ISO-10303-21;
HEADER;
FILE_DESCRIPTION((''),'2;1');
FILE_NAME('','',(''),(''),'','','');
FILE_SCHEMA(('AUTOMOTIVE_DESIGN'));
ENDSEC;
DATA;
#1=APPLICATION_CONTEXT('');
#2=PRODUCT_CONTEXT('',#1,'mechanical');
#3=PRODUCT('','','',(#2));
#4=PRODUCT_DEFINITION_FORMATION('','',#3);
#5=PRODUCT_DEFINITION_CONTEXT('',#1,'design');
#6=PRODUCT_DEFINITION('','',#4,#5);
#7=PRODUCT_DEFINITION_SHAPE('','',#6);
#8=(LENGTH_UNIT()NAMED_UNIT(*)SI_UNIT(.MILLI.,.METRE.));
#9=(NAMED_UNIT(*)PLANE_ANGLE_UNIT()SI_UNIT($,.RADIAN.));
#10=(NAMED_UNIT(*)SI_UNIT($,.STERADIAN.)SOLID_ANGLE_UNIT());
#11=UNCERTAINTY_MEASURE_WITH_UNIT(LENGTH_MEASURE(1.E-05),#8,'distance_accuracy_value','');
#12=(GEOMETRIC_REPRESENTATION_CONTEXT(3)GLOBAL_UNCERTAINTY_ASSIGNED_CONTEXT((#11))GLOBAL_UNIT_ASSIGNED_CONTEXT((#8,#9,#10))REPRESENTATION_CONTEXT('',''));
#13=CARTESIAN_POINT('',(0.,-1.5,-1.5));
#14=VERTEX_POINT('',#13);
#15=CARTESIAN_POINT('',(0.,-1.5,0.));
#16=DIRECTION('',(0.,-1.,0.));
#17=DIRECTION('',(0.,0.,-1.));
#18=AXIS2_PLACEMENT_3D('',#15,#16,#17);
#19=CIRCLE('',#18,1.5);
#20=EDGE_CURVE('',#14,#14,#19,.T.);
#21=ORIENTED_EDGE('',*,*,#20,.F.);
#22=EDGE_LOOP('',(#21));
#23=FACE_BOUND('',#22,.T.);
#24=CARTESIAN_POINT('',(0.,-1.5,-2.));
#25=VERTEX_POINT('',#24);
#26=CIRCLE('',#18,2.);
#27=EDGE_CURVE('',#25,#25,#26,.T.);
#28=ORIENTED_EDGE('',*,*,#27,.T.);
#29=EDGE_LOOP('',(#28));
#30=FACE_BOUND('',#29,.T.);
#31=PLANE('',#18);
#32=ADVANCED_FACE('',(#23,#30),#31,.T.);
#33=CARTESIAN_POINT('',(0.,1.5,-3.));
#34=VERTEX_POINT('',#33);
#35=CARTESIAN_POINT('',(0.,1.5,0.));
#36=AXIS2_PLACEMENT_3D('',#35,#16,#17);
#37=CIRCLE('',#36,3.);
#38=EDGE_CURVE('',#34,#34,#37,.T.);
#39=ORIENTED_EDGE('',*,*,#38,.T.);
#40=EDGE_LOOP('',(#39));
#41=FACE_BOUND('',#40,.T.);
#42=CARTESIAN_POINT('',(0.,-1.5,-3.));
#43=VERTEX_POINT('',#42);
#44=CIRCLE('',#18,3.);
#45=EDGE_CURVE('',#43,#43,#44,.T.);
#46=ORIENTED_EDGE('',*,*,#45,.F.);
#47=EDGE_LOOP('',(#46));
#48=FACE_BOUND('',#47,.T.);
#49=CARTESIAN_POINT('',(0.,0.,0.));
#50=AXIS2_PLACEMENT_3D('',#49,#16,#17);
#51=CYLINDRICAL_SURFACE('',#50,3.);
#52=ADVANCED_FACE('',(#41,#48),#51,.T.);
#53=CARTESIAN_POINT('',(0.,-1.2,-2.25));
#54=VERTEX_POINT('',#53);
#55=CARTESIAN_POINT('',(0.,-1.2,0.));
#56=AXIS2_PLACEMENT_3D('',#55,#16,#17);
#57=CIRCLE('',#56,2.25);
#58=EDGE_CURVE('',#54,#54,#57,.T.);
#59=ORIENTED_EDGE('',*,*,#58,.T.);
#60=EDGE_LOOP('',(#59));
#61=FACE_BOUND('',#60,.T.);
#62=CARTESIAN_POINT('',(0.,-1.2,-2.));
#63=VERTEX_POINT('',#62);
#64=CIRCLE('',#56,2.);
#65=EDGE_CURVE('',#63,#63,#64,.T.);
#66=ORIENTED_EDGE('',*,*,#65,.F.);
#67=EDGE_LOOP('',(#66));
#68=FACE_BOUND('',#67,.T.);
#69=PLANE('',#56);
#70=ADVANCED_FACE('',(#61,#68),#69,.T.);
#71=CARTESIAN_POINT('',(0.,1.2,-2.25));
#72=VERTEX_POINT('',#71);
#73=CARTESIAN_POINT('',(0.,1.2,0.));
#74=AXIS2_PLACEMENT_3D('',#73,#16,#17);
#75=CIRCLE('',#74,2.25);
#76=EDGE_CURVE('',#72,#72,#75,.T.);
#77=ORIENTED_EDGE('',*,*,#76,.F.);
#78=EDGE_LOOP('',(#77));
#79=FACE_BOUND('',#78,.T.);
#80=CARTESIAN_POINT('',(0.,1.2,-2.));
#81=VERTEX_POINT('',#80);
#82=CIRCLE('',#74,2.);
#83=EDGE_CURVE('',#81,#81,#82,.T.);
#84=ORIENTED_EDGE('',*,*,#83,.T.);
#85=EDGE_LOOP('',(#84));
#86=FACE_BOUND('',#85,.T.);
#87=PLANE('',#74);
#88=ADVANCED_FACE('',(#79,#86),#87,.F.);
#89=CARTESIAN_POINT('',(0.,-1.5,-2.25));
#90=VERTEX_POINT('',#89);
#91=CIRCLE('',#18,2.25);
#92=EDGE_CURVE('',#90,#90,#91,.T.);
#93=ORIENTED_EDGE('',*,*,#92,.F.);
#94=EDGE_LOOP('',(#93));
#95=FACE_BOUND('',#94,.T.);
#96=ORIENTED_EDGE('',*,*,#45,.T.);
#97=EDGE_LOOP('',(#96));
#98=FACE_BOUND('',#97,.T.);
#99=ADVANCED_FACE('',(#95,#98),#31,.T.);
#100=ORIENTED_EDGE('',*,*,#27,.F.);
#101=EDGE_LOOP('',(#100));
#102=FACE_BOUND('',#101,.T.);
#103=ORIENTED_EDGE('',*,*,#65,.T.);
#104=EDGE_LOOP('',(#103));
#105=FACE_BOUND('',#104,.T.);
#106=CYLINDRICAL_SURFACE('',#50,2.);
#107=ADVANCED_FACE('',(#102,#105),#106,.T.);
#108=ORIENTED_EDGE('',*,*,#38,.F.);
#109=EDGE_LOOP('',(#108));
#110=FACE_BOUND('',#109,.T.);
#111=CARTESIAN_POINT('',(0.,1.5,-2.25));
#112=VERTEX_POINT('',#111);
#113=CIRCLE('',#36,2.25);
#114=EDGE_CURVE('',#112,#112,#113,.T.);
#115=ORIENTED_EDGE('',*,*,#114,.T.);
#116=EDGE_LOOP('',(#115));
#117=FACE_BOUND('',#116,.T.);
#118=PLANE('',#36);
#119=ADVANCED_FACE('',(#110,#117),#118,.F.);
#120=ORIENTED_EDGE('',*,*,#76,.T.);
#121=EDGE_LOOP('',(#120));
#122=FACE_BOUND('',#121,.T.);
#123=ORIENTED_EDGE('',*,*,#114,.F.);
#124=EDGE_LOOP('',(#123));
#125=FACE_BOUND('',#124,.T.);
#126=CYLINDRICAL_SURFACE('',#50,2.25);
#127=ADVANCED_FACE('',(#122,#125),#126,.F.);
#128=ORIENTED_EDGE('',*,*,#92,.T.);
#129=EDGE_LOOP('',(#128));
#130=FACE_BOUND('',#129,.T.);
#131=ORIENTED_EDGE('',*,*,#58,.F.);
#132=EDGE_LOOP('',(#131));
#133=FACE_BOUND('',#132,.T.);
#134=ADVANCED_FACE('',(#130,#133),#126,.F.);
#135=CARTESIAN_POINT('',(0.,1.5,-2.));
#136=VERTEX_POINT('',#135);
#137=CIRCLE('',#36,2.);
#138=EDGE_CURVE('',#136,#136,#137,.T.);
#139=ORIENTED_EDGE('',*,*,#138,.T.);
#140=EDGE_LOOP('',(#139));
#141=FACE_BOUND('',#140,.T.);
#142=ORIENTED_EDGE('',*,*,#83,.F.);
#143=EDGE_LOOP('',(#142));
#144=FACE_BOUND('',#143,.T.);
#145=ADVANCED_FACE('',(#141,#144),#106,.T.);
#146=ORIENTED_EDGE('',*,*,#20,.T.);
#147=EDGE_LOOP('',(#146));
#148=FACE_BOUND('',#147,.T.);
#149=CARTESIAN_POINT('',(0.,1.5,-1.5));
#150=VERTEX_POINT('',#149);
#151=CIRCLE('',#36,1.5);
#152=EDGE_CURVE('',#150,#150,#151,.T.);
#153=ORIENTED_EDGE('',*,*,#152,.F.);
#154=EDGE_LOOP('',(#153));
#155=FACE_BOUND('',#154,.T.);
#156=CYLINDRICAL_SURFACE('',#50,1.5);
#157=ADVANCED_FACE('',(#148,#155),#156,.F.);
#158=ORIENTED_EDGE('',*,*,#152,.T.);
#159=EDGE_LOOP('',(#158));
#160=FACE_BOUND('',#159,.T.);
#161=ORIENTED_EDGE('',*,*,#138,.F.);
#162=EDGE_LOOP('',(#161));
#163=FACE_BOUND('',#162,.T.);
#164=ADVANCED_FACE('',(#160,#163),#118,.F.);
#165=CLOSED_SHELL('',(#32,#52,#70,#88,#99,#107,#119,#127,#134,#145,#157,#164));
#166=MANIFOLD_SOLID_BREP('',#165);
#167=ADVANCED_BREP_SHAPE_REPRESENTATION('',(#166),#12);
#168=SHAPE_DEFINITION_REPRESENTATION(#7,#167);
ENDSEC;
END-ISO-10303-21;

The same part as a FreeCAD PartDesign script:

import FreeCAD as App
import Part
import Sketcher

doc = App.newDocument("Part")
body = doc.addObject("PartDesign::Body", "Body")

# Sketch on YZ plane
sketch1 = body.newObject("Sketcher::SketchObject", "Sketch")
sketch1.AttachmentSupport = (doc.getObject("YZ_Plane"), [""])
sketch1.MapMode = "FlatFace"
sketch1.addGeometry([
    Part.LineSegment(App.Vector(-1.5, 2, 0), App.Vector(-1.5, 1.5, 0)),  # 0
    Part.LineSegment(App.Vector(-1.5, 1.5, 0), App.Vector(1.5, 1.5, 0)),  # 1
    Part.LineSegment(App.Vector(1.5, 1.5, 0), App.Vector(1.5, 2, 0)),  # 2
    Part.LineSegment(App.Vector(1.5, 2, 0), App.Vector(1.2, 2, 0)),  # 3
    Part.LineSegment(App.Vector(1.2, 2, 0), App.Vector(1.2, 2.25, 0)),  # 4
    Part.LineSegment(App.Vector(1.2, 2.25, 0), App.Vector(1.5, 2.25, 0)),  # 5
    Part.LineSegment(App.Vector(1.5, 2.25, 0), App.Vector(1.5, 3, 0)),  # 6
    Part.LineSegment(App.Vector(1.5, 3, 0), App.Vector(-1.5, 3, 0)),  # 7
    Part.LineSegment(App.Vector(-1.5, 3, 0), App.Vector(-1.5, 2.25, 0)),  # 8
    Part.LineSegment(App.Vector(-1.5, 2.25, 0), App.Vector(-1.2, 2.25, 0)),  # 9
    Part.LineSegment(App.Vector(-1.2, 2.25, 0), App.Vector(-1.2, 2, 0)),  # 10
    Part.LineSegment(App.Vector(-1.2, 2, 0), App.Vector(-1.5, 2, 0)),  # 11
], False)
sketch1.addConstraint([
    Sketcher.Constraint("Coincident", 0, 2, 1, 1),
    Sketcher.Constraint("Coincident", 1, 2, 2, 1),
    Sketcher.Constraint("Coincident", 2, 2, 3, 1),
    Sketcher.Constraint("Coincident", 3, 2, 4, 1),
    Sketcher.Constraint("Coincident", 4, 2, 5, 1),
    Sketcher.Constraint("Coincident", 5, 2, 6, 1),
    Sketcher.Constraint("Coincident", 6, 2, 7, 1),
    Sketcher.Constraint("Coincident", 7, 2, 8, 1),
    Sketcher.Constraint("Coincident", 8, 2, 9, 1),
    Sketcher.Constraint("Coincident", 9, 2, 10, 1),
    Sketcher.Constraint("Coincident", 10, 2, 11, 1),
    Sketcher.Constraint("Coincident", 11, 2, 0, 1),
    Sketcher.Constraint("Vertical", 0),
    Sketcher.Constraint("Horizontal", 1),
    Sketcher.Constraint("Vertical", 2),
    Sketcher.Constraint("Horizontal", 3),
    Sketcher.Constraint("Vertical", 4),
    Sketcher.Constraint("Horizontal", 5),
    Sketcher.Constraint("Vertical", 6),
    Sketcher.Constraint("Horizontal", 7),
    Sketcher.Constraint("Vertical", 8),
    Sketcher.Constraint("Horizontal", 9),
    Sketcher.Constraint("Vertical", 10),
    Sketcher.Constraint("Horizontal", 11),
    Sketcher.Constraint("Symmetric", 5, 2, 8, 2, -2),
    Sketcher.Constraint("Symmetric", 3, 2, 10, 2, -2),
    Sketcher.Constraint("Vertical", 2, 2, 5, 2),
    Sketcher.Constraint("Vertical", 0, 2, 7, 2),
    Sketcher.Constraint("DistanceX", 1, 1, 1, 2, 3.0),
    Sketcher.Constraint("DistanceX", 3, 2, 3, 1, 0.3),
    Sketcher.Constraint("DistanceY", 0, 2, 0, 1, 0.5),
    Sketcher.Constraint("DistanceY", -1, 1, 2, 2, 2.0),
    Sketcher.Constraint("DistanceY", -1, 1, 6, 2, 3.0),
    Sketcher.Constraint("DistanceY", 4, 1, 4, 2, 0.25),
])
revolution = body.newObject("PartDesign::Revolution", "Revolution")
revolution.Profile = sketch1
revolution.ReferenceAxis = (sketch1, ["H_Axis"])
revolution.Angle = 360

doc.recompute()
